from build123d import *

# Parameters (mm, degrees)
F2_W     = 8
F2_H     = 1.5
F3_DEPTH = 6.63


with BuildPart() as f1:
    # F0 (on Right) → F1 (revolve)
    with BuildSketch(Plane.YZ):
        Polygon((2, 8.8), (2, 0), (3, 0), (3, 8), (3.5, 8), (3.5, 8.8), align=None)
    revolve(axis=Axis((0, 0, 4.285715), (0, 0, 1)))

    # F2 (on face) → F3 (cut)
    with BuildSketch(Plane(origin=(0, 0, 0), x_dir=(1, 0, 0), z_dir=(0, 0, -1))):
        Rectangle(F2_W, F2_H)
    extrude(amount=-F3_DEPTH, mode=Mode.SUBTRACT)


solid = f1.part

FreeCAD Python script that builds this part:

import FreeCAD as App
import Part
import Sketcher
Q = App.Units.Quantity

doc = App.newDocument("Part")
body = doc.addObject("PartDesign::Body", "Body")

# Sketch on YZ plane
sketch1 = body.newObject("Sketcher::SketchObject", "Sketch")
sketch1.AttachmentSupport = (doc.getObject("YZ_Plane"), [""])
sketch1.MapMode = "FlatFace"
sketch1.addGeometry([
    Part.LineSegment(App.Vector(2, 8.8, 0), App.Vector(2, 0, 0)),  # 0
    Part.LineSegment(App.Vector(2, 0, 0), App.Vector(3, 0, 0)),  # 1
    Part.LineSegment(App.Vector(3, 0, 0), App.Vector(3, 8, 0)),  # 2
    Part.LineSegment(App.Vector(3, 8, 0), App.Vector(3.5, 8, 0)),  # 3
    Part.LineSegment(App.Vector(3.5, 8, 0), App.Vector(3.5, 8.8, 0)),  # 4
    Part.LineSegment(App.Vector(3.5, 8.8, 0), App.Vector(2, 8.8, 0)),  # 5
], False)
sketch1.addConstraint([
    Sketcher.Constraint("Coincident", 0, 2, 1, 1),
    Sketcher.Constraint("Coincident", 1, 2, 2, 1),
    Sketcher.Constraint("Coincident", 2, 2, 3, 1),
    Sketcher.Constraint("Coincident", 3, 2, 4, 1),
    Sketcher.Constraint("Coincident", 4, 2, 5, 1),
    Sketcher.Constraint("Coincident", 5, 2, 0, 1),
    Sketcher.Constraint("Vertical", 0),
    Sketcher.Constraint("Horizontal", 1),
    Sketcher.Constraint("Vertical", 2),
    Sketcher.Constraint("Horizontal", 3),
    Sketcher.Constraint("Vertical", 4),
    Sketcher.Constraint("Horizontal", 5),
    Sketcher.Constraint("PointOnObject", 0, 2, -1),
    Sketcher.Constraint("DistanceX", 1, 1, 1, 2, Q("1 mm")),
    Sketcher.Constraint("DistanceY", 2, 1, 2, 2, Q("8 mm")),
    Sketcher.Constraint("DistanceX", 3, 1, 3, 2, Q("0.5 mm")),
    Sketcher.Constraint("DistanceY", 0, 2, 0, 1, Q("8.8 mm")),
    Sketcher.Constraint("DistanceX", -1, 1, 0, 2, Q("2 mm")),
])
revolution = body.newObject("PartDesign::Revolution", "Revolution")
revolution.Profile = sketch1
revolution.ReferenceAxis = (sketch1, ["V_Axis"])
revolution.Angle = 360

# Sketch on XY plane
sketch2 = body.newObject("Sketcher::SketchObject", "Sketch001")
sketch2.AttachmentSupport = (doc.getObject("XY_Plane"), [""])
sketch2.MapMode = "FlatFace"
sketch2.addGeometry([
    Part.LineSegment(App.Vector(-4, -0.8, 0), App.Vector(-4, 0.8, 0)),
    Part.LineSegment(App.Vector(-4, 0.8, 0), App.Vector(4, 0.8, 0)),
    Part.LineSegment(App.Vector(4, 0.8, 0), App.Vector(4, -0.8, 0)),
    Part.LineSegment(App.Vector(4, -0.8, 0), App.Vector(-4, -0.8, 0)),
], False)
sketch2.addConstraint([
    Sketcher.Constraint("Coincident", 0, 2, 1, 1),
    Sketcher.Constraint("Coincident", 1, 2, 2, 1),
    Sketcher.Constraint("Coincident", 2, 2, 3, 1),
    Sketcher.Constraint("Coincident", 3, 2, 0, 1),
    Sketcher.Constraint("Vertical", 0),
    Sketcher.Constraint("Horizontal", 1),
    Sketcher.Constraint("Vertical", 2),
    Sketcher.Constraint("Horizontal", 3),
    Sketcher.Constraint("Symmetric", 0, 2, 2, 2, -1, 1),
    Sketcher.Constraint("DistanceX", 1, 1, 1, 2, Q("8 mm")),
    Sketcher.Constraint("DistanceY", 0, 1, 0, 2, Q("1.5 mm")),
])
pocket1 = body.newObject("PartDesign::Pocket", "Pocket")
pocket1.Profile = sketch2
pocket1.Length = 6.63
pocket1.Reversed = True

doc.recompute()
